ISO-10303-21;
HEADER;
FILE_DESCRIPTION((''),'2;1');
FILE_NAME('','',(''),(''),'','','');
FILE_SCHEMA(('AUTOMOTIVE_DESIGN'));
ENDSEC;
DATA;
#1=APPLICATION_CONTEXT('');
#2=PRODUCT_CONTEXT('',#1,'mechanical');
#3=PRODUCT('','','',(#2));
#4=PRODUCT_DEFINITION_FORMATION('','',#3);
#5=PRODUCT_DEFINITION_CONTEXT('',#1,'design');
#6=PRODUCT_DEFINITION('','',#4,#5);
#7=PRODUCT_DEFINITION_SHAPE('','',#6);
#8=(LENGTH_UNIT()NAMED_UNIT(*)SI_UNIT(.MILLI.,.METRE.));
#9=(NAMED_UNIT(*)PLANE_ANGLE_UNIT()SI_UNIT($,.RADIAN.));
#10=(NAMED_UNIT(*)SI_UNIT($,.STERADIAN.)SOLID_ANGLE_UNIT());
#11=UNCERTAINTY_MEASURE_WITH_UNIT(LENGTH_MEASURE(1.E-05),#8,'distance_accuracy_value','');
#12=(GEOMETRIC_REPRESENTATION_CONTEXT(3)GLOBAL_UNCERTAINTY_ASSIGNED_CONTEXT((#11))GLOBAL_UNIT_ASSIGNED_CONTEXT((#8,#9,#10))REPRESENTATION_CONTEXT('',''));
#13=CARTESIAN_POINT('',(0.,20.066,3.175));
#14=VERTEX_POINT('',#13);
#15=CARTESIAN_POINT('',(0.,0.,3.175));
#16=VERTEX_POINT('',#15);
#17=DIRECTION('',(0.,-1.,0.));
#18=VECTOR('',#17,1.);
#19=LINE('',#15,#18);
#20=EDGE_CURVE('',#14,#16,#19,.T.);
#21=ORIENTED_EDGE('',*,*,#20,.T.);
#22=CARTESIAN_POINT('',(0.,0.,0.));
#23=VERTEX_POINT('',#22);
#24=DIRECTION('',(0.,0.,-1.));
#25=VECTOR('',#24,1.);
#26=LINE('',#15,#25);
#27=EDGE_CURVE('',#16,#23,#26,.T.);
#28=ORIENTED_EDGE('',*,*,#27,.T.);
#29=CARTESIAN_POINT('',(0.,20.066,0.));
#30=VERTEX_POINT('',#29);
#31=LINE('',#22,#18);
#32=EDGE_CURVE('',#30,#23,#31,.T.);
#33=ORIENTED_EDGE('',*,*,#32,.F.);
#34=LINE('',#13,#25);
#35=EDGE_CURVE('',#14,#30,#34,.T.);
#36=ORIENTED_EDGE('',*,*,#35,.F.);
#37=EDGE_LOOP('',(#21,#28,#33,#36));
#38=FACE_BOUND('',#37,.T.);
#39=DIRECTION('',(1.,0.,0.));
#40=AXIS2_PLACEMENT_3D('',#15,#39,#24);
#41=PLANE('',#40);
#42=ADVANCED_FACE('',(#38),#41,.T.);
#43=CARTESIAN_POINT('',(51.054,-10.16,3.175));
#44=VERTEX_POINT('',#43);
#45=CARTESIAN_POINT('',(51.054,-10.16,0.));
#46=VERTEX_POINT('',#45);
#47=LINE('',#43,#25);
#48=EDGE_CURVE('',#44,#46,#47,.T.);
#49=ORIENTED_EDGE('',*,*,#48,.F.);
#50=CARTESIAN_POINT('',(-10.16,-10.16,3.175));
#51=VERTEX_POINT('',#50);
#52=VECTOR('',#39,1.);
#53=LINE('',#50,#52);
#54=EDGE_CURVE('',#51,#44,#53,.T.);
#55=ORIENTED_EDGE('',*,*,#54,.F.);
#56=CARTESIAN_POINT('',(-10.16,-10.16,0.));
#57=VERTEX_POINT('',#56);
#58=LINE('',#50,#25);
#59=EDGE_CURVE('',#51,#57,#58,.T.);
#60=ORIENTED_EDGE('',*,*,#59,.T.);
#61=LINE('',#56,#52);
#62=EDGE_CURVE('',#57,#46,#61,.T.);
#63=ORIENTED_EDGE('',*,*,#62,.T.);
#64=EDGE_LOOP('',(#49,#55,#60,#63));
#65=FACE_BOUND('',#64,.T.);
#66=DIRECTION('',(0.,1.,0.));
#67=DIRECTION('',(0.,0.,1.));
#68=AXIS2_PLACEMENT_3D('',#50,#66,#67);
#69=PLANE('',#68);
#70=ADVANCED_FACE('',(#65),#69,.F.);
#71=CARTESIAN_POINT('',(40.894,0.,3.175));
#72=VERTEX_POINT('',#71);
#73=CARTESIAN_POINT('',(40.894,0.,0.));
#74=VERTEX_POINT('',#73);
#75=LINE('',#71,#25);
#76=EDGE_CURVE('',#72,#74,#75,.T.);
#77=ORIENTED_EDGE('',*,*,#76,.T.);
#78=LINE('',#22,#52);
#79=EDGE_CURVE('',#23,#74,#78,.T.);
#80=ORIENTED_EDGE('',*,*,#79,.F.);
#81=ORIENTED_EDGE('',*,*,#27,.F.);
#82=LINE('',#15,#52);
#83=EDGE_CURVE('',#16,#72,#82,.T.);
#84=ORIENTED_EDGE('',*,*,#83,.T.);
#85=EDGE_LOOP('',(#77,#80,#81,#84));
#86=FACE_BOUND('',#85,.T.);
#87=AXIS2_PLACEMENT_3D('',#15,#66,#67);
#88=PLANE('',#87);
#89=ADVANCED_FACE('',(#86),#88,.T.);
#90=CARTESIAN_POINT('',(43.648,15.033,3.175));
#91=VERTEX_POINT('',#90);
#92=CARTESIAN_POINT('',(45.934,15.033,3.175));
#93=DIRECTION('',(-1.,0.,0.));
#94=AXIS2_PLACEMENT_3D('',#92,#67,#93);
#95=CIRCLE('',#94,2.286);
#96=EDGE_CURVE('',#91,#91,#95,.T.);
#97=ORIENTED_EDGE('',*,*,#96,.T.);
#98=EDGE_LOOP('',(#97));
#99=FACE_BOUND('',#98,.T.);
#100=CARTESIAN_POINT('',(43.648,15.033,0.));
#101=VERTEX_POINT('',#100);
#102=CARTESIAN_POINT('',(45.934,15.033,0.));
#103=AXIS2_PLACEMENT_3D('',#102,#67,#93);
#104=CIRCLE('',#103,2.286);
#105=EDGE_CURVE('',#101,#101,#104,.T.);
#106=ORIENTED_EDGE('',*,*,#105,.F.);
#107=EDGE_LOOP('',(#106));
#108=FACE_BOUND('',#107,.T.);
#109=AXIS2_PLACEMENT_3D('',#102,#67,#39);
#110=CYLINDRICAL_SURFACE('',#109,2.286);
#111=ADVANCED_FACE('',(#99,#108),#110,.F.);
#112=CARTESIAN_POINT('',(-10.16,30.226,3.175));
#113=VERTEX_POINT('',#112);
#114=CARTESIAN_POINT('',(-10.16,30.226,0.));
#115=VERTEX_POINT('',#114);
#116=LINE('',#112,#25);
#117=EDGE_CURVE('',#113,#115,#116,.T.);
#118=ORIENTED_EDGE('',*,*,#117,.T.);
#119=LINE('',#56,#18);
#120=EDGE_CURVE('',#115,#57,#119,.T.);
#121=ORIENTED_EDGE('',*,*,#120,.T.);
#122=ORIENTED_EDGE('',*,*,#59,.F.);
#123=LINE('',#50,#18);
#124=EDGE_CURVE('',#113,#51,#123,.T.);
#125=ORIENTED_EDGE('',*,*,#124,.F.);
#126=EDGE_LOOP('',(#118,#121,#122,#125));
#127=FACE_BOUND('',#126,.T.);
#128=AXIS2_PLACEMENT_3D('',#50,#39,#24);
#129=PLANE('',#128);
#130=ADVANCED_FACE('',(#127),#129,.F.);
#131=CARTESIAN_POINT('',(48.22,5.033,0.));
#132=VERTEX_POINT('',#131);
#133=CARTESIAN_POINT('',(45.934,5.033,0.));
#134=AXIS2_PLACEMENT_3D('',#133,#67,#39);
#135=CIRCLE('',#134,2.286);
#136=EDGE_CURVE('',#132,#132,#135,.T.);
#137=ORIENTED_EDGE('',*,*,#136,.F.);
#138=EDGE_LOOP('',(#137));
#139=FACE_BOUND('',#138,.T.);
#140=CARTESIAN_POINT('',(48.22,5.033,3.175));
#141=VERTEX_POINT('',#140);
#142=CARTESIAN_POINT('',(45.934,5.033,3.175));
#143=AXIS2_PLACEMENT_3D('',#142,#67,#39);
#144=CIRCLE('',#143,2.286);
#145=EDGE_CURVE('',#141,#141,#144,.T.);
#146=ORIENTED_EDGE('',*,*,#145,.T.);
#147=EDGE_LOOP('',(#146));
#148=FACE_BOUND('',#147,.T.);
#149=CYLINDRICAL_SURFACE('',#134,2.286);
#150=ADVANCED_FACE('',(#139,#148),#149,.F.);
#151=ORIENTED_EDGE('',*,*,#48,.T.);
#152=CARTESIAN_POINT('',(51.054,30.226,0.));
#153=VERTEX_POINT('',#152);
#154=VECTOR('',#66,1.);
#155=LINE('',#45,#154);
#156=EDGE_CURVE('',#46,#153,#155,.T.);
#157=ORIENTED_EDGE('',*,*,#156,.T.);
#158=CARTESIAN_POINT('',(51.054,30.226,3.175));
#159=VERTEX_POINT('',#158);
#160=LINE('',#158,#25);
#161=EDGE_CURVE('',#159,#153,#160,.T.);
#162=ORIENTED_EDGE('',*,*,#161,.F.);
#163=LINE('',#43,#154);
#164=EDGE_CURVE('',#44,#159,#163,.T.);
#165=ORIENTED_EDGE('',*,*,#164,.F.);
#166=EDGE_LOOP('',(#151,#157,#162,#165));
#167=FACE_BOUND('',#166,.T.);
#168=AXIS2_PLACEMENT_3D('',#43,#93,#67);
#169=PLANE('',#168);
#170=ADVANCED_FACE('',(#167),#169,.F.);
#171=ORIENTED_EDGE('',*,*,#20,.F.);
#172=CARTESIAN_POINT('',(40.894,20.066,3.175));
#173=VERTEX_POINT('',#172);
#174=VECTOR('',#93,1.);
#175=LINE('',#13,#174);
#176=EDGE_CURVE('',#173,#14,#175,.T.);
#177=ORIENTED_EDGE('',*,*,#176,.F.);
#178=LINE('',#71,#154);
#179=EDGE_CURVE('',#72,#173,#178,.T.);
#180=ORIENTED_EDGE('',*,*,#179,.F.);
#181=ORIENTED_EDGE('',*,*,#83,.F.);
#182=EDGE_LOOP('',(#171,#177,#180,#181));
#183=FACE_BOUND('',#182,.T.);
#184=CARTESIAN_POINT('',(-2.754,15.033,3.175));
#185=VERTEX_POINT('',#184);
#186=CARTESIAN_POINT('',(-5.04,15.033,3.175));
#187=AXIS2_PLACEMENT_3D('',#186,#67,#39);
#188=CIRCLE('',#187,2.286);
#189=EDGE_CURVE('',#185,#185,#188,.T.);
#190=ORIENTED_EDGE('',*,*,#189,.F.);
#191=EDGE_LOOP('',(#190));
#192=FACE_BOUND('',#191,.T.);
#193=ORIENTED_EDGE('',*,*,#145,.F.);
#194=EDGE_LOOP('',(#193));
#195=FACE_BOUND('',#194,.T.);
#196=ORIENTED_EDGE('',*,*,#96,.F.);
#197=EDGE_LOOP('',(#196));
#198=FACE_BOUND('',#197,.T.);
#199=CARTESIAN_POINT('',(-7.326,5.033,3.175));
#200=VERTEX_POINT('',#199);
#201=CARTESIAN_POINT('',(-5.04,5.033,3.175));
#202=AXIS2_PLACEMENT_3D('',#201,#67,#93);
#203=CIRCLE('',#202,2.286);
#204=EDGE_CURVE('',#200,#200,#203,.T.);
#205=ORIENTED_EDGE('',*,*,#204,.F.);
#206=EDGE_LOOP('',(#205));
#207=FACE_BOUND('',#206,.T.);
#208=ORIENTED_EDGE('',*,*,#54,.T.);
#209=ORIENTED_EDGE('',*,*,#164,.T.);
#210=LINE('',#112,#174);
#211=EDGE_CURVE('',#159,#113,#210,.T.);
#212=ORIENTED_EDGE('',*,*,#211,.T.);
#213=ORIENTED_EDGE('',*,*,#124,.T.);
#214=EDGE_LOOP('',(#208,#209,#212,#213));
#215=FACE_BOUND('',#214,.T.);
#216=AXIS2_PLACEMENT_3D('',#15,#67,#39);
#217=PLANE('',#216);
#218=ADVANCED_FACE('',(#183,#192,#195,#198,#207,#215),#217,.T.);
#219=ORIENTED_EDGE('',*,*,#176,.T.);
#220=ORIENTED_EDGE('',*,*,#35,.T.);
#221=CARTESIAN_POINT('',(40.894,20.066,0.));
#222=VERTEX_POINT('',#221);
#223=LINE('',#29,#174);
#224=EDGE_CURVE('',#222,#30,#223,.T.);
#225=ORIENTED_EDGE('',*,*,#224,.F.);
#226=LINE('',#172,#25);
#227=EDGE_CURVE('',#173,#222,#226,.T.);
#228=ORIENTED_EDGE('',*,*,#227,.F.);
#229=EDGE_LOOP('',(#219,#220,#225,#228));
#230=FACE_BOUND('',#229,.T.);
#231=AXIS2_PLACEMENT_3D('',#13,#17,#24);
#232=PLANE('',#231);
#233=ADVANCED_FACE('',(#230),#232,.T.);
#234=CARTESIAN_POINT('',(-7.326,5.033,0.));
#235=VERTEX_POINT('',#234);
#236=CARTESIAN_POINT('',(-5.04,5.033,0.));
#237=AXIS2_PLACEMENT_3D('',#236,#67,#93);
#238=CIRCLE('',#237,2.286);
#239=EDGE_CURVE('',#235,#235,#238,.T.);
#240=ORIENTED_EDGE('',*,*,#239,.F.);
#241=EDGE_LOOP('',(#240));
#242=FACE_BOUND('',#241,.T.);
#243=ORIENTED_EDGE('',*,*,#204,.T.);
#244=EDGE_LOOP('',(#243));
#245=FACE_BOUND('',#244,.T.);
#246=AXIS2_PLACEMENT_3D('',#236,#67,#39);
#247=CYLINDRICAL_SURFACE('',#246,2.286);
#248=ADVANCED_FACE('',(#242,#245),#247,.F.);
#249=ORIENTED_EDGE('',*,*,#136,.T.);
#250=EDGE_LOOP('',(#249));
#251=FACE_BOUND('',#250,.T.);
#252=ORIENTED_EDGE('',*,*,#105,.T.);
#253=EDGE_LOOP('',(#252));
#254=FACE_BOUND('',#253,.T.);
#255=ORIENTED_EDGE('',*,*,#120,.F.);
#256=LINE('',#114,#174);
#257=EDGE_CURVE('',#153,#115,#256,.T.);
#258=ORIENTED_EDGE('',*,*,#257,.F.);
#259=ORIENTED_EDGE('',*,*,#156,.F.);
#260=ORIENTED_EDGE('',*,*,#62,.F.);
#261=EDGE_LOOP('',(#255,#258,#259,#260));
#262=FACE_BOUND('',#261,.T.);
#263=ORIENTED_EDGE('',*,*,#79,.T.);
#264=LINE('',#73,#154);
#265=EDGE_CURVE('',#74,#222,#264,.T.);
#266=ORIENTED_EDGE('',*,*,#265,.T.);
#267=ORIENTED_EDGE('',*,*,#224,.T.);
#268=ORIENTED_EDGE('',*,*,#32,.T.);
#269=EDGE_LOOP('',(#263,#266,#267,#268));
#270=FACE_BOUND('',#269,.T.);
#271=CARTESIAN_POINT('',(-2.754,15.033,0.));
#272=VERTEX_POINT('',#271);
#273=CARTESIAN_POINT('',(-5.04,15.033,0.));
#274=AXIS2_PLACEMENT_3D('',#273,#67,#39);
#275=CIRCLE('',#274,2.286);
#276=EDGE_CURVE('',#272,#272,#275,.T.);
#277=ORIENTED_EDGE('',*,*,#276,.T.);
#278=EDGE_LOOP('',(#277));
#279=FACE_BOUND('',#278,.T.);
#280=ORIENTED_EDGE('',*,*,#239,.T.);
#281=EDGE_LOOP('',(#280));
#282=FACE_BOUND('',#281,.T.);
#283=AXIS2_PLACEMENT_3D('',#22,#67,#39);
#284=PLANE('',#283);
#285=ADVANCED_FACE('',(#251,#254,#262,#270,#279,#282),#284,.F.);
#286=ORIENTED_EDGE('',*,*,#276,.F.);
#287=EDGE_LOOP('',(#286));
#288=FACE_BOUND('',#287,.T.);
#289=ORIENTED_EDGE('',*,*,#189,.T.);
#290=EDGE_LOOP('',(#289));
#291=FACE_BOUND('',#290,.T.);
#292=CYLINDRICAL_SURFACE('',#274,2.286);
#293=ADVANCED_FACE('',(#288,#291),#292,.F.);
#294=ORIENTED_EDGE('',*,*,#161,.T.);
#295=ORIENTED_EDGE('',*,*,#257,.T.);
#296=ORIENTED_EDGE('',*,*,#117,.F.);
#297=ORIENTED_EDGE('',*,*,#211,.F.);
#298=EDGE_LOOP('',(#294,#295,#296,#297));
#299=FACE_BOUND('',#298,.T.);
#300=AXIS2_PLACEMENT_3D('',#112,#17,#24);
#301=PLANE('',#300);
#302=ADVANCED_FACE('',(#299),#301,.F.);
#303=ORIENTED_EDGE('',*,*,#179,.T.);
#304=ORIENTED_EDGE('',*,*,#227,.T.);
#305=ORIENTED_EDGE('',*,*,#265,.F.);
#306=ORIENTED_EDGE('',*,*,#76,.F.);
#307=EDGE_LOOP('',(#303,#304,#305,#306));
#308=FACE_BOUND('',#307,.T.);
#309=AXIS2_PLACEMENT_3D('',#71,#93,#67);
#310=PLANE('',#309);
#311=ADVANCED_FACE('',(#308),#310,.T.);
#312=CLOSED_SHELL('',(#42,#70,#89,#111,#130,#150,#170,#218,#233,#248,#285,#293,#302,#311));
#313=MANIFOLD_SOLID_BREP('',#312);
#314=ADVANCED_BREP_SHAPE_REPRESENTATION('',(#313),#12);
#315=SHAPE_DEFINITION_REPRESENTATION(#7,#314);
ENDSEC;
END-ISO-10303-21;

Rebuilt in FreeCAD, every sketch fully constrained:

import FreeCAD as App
import Part
import Sketcher
from FreeCAD import Vector
Q = App.Units.Quantity

doc = App.newDocument("Part")
params = doc.addObject("Spreadsheet::Sheet", "Params")
for row, (alias, value) in enumerate([
    ("sketch1_width", "2.41 in"),
    ("sketch1_width2", "1.61 in"),
    ("sketch1_height", "1.59 in"),
    ("sketch1_height2", "0.79 in"),
    ("pad1_length", "0.125 in"),
    ("sketch2_diameter", "0.18 in"),
], start=1):
    params.set(f"A{row}", alias)
    params.set(f"B{row}", "=" + value)
    params.setAlias(f"B{row}", alias)

body = doc.addObject("PartDesign::Body", "Body")

sketch1 = doc.addObject("Sketcher::SketchObject", "Sketch")
body.addObject(sketch1)
sketch1.AttachmentSupport = (doc.XY_Plane, [""])
sketch1.MapMode = "FlatFace"
sketch1.addGeometry(Part.LineSegment(Vector(-10, 30, 0), Vector(-10, -10, 0)), False)
sketch1.addGeometry(Part.LineSegment(Vector(-10, -10, 0), Vector(51, -10, 0)), False)
sketch1.addGeometry(Part.LineSegment(Vector(51, -10, 0), Vector(51, 30, 0)), False)
sketch1.addGeometry(Part.LineSegment(Vector(51, 30, 0), Vector(-10, 30, 0)), False)
sketch1.addGeometry(Part.LineSegment(Vector(41, 0, 0), Vector(0, 0, 0)), False)
sketch1.addGeometry(Part.LineSegment(Vector(0, 0, 0), Vector(0, 20, 0)), False)
sketch1.addGeometry(Part.LineSegment(Vector(0, 20, 0), Vector(41, 20, 0)), False)
sketch1.addGeometry(Part.LineSegment(Vector(41, 20, 0), Vector(41, 0, 0)), False)
sketch1.addConstraint(Sketcher.Constraint("Coincident", 0, 2, 1, 1))
sketch1.addConstraint(Sketcher.Constraint("Coincident", 1, 2, 2, 1))
sketch1.addConstraint(Sketcher.Constraint("Coincident", 2, 2, 3, 1))
sketch1.addConstraint(Sketcher.Constraint("Coincident", 3, 2, 0, 1))
sketch1.addConstraint(Sketcher.Constraint("Coincident", 4, 2, 5, 1))
sketch1.addConstraint(Sketcher.Constraint("Coincident", 5, 2, 6, 1))
sketch1.addConstraint(Sketcher.Constraint("Coincident", 6, 2, 7, 1))
sketch1.addConstraint(Sketcher.Constraint("Coincident", 7, 2, 4, 1))
sketch1.addConstraint(Sketcher.Constraint("Vertical", 0))
sketch1.addConstraint(Sketcher.Constraint("Horizontal", 1))
sketch1.addConstraint(Sketcher.Constraint("Vertical", 2))
sketch1.addConstraint(Sketcher.Constraint("Horizontal", 3))
sketch1.addConstraint(Sketcher.Constraint("Horizontal", 4))
sketch1.addConstraint(Sketcher.Constraint("Vertical", 5))
sketch1.addConstraint(Sketcher.Constraint("Horizontal", 6))
sketch1.addConstraint(Sketcher.Constraint("Vertical", 7))
sketch1.addConstraint(Sketcher.Constraint("Coincident", 4, 2, -1, 1))
sketch1.addConstraint(Sketcher.Constraint("DistanceX", 1, 1, 1, 2, Q("2.41 in")))
sketch1.addConstraint(Sketcher.Constraint("DistanceX", 4, 2, 4, 1, Q("1.61 in")))
sketch1.addConstraint(Sketcher.Constraint("DistanceY", 0, 2, 0, 1, Q("1.59 in")))
sketch1.addConstraint(Sketcher.Constraint("DistanceY", 5, 1, 5, 2, Q("0.79 in")))
sketch1.addConstraint(Sketcher.Constraint("DistanceX", 0, 2, -1, 1, Q("0.4 in")))
sketch1.addConstraint(Sketcher.Constraint("DistanceY", 0, 2, -1, 1, Q("0.4 in")))
sketch1.setExpression("Constraints[17]", "Params.sketch1_width")
sketch1.setExpression("Constraints[18]", "Params.sketch1_width2")
sketch1.setExpression("Constraints[19]", "Params.sketch1_height")
sketch1.setExpression("Constraints[20]", "Params.sketch1_height2")
pad1 = doc.addObject("PartDesign::Pad", "Pad")
body.addObject(pad1)
pad1.Profile = sketch1
pad1.setExpression("Length", "Params.pad1_length")

sketch2 = doc.addObject("Sketcher::SketchObject", "Sketch001")
body.addObject(sketch2)
sketch2.AttachmentSupport = (doc.XY_Plane, [""])
sketch2.MapMode = "FlatFace"
sketch2.AttachmentOffset = App.Placement(Vector(0, 0, 0.125 * 25.4), App.Rotation())
sketch2.addGeometry(Part.Circle(Vector(-5, 15, 0), Vector(0, 0, 1), 2.3), False)
sketch2.addGeometry(Part.Circle(Vector(-5, 5, 0), Vector(0, 0, 1), 2.3), False)
sketch2.addGeometry(Part.Circle(Vector(45.9, 5, 0), Vector(0, 0, 1), 2.3), False)
sketch2.addGeometry(Part.Circle(Vector(45.9, 15, 0), Vector(0, 0, 1), 2.3), False)
sketch2.addConstraint(Sketcher.Constraint("Equal", 0, 1))
sketch2.addConstraint(Sketcher.Constraint("Equal", 1, 2))
sketch2.addConstraint(Sketcher.Constraint("Equal", 2, 3))
sketch2.addConstraint(Sketcher.Constraint("Horizontal", 1, 3, 2, 3))
sketch2.addConstraint(Sketcher.Constraint("Horizontal", 0, 3, 3, 3))
sketch2.addConstraint(Sketcher.Constraint("Vertical", 0, 3, 1, 3))
sketch2.addConstraint(Sketcher.Constraint("Vertical", 2, 3, 3, 3))
sketch2.addConstraint(Sketcher.Constraint("Diameter", 0, Q("0.18 in")))
sketch2.addConstraint(Sketcher.Constraint("DistanceX", 0, 3, -1, 1, 5.04))
sketch2.addConstraint(Sketcher.Constraint("DistanceY", -1, 1, 0, 3, 15.033))
sketch2.addConstraint(Sketcher.Constraint("DistanceY", -1, 1, 1, 3, 5.033))
sketch2.addConstraint(Sketcher.Constraint("DistanceX", -1, 1, 2, 3, 45.934))
sketch2.setExpression("Constraints[7]", "Params.sketch2_diameter")
pocket1 = doc.addObject("PartDesign::Pocket", "Pocket")
body.addObject(pocket1)
pocket1.Profile = sketch2
pocket1.Type = "ThroughAll"

doc.recompute()
